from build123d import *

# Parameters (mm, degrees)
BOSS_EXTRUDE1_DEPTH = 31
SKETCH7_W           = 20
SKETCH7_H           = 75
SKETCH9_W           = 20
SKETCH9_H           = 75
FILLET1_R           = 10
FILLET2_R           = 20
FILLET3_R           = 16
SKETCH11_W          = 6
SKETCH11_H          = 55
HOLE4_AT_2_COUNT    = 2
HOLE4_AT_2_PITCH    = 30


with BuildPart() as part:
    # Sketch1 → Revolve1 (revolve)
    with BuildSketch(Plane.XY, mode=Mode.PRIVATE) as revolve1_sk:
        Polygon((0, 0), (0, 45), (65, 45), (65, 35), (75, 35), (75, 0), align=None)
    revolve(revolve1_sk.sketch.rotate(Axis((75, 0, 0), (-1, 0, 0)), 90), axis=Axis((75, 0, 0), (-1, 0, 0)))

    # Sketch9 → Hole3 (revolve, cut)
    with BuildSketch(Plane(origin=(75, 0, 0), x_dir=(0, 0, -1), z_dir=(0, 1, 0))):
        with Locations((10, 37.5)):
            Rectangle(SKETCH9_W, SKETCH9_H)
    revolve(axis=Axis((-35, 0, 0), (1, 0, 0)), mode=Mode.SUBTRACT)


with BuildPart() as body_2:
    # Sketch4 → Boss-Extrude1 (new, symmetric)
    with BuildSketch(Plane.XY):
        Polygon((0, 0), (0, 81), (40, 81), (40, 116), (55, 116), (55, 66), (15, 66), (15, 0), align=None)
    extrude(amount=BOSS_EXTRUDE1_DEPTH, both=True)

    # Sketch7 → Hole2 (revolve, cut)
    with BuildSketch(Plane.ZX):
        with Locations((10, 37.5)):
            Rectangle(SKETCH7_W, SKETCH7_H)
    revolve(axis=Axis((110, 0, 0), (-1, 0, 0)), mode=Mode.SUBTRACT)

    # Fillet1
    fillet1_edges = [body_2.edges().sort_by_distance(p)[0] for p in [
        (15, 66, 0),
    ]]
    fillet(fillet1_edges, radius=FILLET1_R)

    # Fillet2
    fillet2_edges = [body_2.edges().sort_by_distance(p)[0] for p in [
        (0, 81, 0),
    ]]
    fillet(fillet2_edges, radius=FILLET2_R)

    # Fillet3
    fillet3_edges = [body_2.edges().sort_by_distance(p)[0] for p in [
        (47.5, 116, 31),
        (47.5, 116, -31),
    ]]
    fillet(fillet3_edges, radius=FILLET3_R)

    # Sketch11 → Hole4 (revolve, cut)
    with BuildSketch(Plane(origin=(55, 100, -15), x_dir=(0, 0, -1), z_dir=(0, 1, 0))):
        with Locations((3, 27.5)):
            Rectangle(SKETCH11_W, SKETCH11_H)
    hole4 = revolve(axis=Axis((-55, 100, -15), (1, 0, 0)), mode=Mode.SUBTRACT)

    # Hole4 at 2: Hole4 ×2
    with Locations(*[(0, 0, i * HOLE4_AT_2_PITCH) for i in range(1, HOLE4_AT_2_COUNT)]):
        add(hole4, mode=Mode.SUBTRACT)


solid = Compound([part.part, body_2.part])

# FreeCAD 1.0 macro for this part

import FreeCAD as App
import Part
import Sketcher
from FreeCAD import Vector


def edges_at(feature, points):
    """Names of the edges that pass closest to the given points."""
    edges = feature.Shape.Edges
    near = lambda p: min(range(len(edges)), key=lambda i: edges[i].distToShape(Part.Vertex(*p))[0])
    return sorted({f"Edge{near(p) + 1}" for p in points})


def add_polygon(sketch, points):
    """Adds a closed chain of lines whose ends are joined by coincident constraints."""
    first, n = sketch.GeometryCount, len(points)
    for a, b in zip(points, points[1:] + points[:1]):
        sketch.addGeometry(Part.LineSegment(App.Vector(*a, 0), App.Vector(*b, 0)), False)
    for i in range(n):
        sketch.addConstraint(Sketcher.Constraint("Coincident", first + i, 2, first + (i + 1) % n, 1))

doc = App.newDocument("Part")
body = doc.addObject("PartDesign::Body", "Body")

# Sketch on XY plane
sketch1 = doc.addObject("Sketcher::SketchObject", "Sketch")
body.addObject(sketch1)
sketch1.AttachmentSupport = (doc.XY_Plane, [""])
sketch1.MapMode = "FlatFace"
add_polygon(sketch1, [(0, 45), (0, 0), (75, 0), (75, 35), (65, 35), (65, 45)])  # lines 0-5
sketch1.addConstraint(Sketcher.Constraint("Vertical", 0))
sketch1.addConstraint(Sketcher.Constraint("Horizontal", 1))
sketch1.addConstraint(Sketcher.Constraint("Vertical", 2))
sketch1.addConstraint(Sketcher.Constraint("Horizontal", 3))
sketch1.addConstraint(Sketcher.Constraint("Vertical", 4))
sketch1.addConstraint(Sketcher.Constraint("Horizontal", 5))
sketch1.addConstraint(Sketcher.Constraint("Coincident", 0, 2, -1, 1))
sketch1.addConstraint(Sketcher.Constraint("Equal", 3, 4))
sketch1.addConstraint(Sketcher.Constraint("DistanceX", 1, 1, 1, 2, 75.0))
sketch1.addConstraint(Sketcher.Constraint("DistanceX", 3, 2, 3, 1, 10.0))
sketch1.addConstraint(Sketcher.Constraint("DistanceY", 0, 2, 0, 1, 45.0))
revolution = doc.addObject("PartDesign::Revolution", "Revolution")
body.addObject(revolution)
revolution.Profile = sketch1
revolution.ReferenceAxis = (sketch1, ["H_Axis"])
revolution.Angle = 360

# Sketch on XZ plane
sketch2 = doc.addObject("Sketcher::SketchObject", "Sketch001")
body.addObject(sketch2)
sketch2.AttachmentSupport = (doc.XZ_Plane, [""])
sketch2.MapMode = "FlatFace"
add_polygon(sketch2, [(0, 0), (75, 0), (75, -20), (0, -20)])  # lines 0-3
sketch2.addConstraint(Sketcher.Constraint("Horizontal", 0))
sketch2.addConstraint(Sketcher.Constraint("Vertical", 1))
sketch2.addConstraint(Sketcher.Constraint("Horizontal", 2))
sketch2.addConstraint(Sketcher.Constraint("Vertical", 3))
sketch2.addConstraint(Sketcher.Constraint("Coincident", 3, 2, -1, 1))
sketch2.addConstraint(Sketcher.Constraint("DistanceX", 0, 1, 0, 2, 75.0))
sketch2.addConstraint(Sketcher.Constraint("DistanceY", 1, 2, 1, 1, 20.0))
groove = doc.addObject("PartDesign::Groove", "Groove")
body.addObject(groove)
groove.Profile = sketch2
groove.ReferenceAxis = (sketch2, ["H_Axis"])
groove.Angle = 360
body2 = doc.addObject("PartDesign::Body", "Body001")

# Sketch on XY plane
sketch3 = doc.addObject("Sketcher::SketchObject", "Sketch002")
body2.addObject(sketch3)
sketch3.AttachmentSupport = (doc.getObject("XY_Plane001"), [""])
sketch3.MapMode = "FlatFace"
add_polygon(sketch3, [(0, 81), (0, 0), (15, 0), (15, 66), (55, 66), (55, 116), (40, 116), (40, 81)])  # lines 0-7
sketch3.addConstraint(Sketcher.Constraint("Vertical", 0))
sketch3.addConstraint(Sketcher.Constraint("Horizontal", 1))
sketch3.addConstraint(Sketcher.Constraint("Vertical", 2))
sketch3.addConstraint(Sketcher.Constraint("Horizontal", 3))
sketch3.addConstraint(Sketcher.Constraint("Vertical", 4))
sketch3.addConstraint(Sketcher.Constraint("Horizontal", 5))
sketch3.addConstraint(Sketcher.Constraint("Vertical", 6))
sketch3.addConstraint(Sketcher.Constraint("Horizontal", 7))
sketch3.addConstraint(Sketcher.Constraint("Coincident", 0, 2, -1, 1))
sketch3.addConstraint(Sketcher.Constraint("Equal", 1, 5))
sketch3.addConstraint(Sketcher.Constraint("DistanceX", 1, 1, 1, 2, 15.0))
sketch3.addConstraint(Sketcher.Constraint("DistanceX", 3, 1, 3, 2, 40.0))
sketch3.addConstraint(Sketcher.Constraint("DistanceY", 0, 2, 0, 1, 81.0))
sketch3.addConstraint(Sketcher.Constraint("DistanceY", 2, 1, 2, 2, 66.0))
sketch3.addConstraint(Sketcher.Constraint("DistanceY", 4, 1, 4, 2, 50.0))
pad1 = doc.addObject("PartDesign::Pad", "Pad")
body2.addObject(pad1)
pad1.Profile = sketch3
pad1.Length = 62
pad1.Midplane = True

# Sketch on XZ plane
sketch4 = doc.addObject("Sketcher::SketchObject", "Sketch003")
body2.addObject(sketch4)
sketch4.AttachmentSupport = (doc.getObject("XZ_Plane001"), [""])
sketch4.MapMode = "FlatFace"
add_polygon(sketch4, [(75, 0), (0, 0), (0, 20), (75, 20)])  # lines 0-3
sketch4.addConstraint(Sketcher.Constraint("Horizontal", 0))
sketch4.addConstraint(Sketcher.Constraint("Vertical", 1))
sketch4.addConstraint(Sketcher.Constraint("Horizontal", 2))
sketch4.addConstraint(Sketcher.Constraint("Vertical", 3))
sketch4.addConstraint(Sketcher.Constraint("Coincident", 0, 2, -1, 1))
sketch4.addConstraint(Sketcher.Constraint("DistanceX", 0, 2, 0, 1, 75.0))
sketch4.addConstraint(Sketcher.Constraint("DistanceY", 1, 1, 1, 2, 20.0))
groove2 = doc.addObject("PartDesign::Groove", "Groove001")
body2.addObject(groove2)
groove2.Profile = sketch4
groove2.ReferenceAxis = (sketch4, ["H_Axis"])
groove2.Angle = 360
doc.recompute()

fillet = doc.addObject("PartDesign::Fillet", "Fillet")
body2.addObject(fillet)
fillet.Base = (groove2, edges_at(groove2, [(15, 66, 0)]))
fillet.Radius = 10
doc.recompute()

fillet2 = doc.addObject("PartDesign::Fillet", "Fillet001")
body2.addObject(fillet2)
fillet2.Base = (fillet, edges_at(fillet, [(0, 81, 0)]))
fillet2.Radius = 20
doc.recompute()

fillet3 = doc.addObject("PartDesign::Fillet", "Fillet002")
body2.addObject(fillet3)
fillet3.Base = (fillet2, edges_at(fillet2, [(47.5, 116, 31), (47.5, 116, -31)]))
fillet3.Radius = 16

# Sketch on XZ plane
sketch5 = doc.addObject("Sketcher::SketchObject", "Sketch004")
body2.addObject(sketch5)
sketch5.AttachmentSupport = (doc.getObject("XZ_Plane001"), [""])
sketch5.MapMode = "FlatFace"
sketch5.AttachmentOffset = App.Placement(Vector(0, 0, -100), App.Rotation())
add_polygon(sketch5, [(0, -15), (55, -15), (55, -21), (0, -21)])  # lines 0-3
sketch5.addGeometry(Part.LineSegment(Vector(0, -15, 0), Vector(55, -15, 0)), True)  # axis
sketch5.addConstraint(Sketcher.Constraint("Horizontal", 0))
sketch5.addConstraint(Sketcher.Constraint("Vertical", 1))
sketch5.addConstraint(Sketcher.Constraint("Horizontal", 2))
sketch5.addConstraint(Sketcher.Constraint("Vertical", 3))
sketch5.addConstraint(Sketcher.Constraint("Horizontal", 4))
sketch5.addConstraint(Sketcher.Constraint("Coincident", 4, 1, 3, 2))
sketch5.addConstraint(Sketcher.Constraint("PointOnObject", 2, 2, -2))
sketch5.addConstraint(Sketcher.Constraint("Vertical", 1, 2, 4, 2))
sketch5.addConstraint(Sketcher.Constraint("DistanceX", 0, 1, 0, 2, 55.0))
sketch5.addConstraint(Sketcher.Constraint("DistanceY", 1, 2, 1, 1, 6.0))
sketch5.addConstraint(Sketcher.Constraint("DistanceY", 0, 2, -1, 1, 15.0))
groove3 = doc.addObject("PartDesign::Groove", "Groove002")
body2.addObject(groove3)
groove3.Profile = sketch5
groove3.ReferenceAxis = (sketch5, ["Axis0"])
groove3.Angle = 360
doc.recompute()

linearpattern = doc.addObject("PartDesign::LinearPattern", "LinearPattern")
body2.addObject(linearpattern)
linearpattern.Originals = [groove3]
linearpattern.Direction = (doc.getObject("Z_Axis001"), [""])
linearpattern.Mode = "offset"
linearpattern.Offset = 30
linearpattern.Occurrences = 2
body2.Tip = linearpattern

doc.recompute()
